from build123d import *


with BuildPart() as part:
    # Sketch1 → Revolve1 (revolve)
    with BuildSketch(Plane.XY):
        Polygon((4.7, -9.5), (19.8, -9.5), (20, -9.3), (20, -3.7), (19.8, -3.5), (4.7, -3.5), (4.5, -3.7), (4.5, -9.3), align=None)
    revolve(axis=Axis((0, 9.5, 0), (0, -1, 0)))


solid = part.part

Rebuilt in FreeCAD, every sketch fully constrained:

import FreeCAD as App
import Part
import Sketcher
from FreeCAD import Vector

doc = App.newDocument("Part")
body = doc.addObject("PartDesign::Body", "Body")

sketch1 = doc.addObject("Sketcher::SketchObject", "Sketch")
body.addObject(sketch1)
sketch1.AttachmentSupport = (doc.XY_Plane, [""])
sketch1.MapMode = "FlatFace"
sketch1.addGeometry(Part.LineSegment(Vector(4.7, -9.5, 0), Vector(19.8, -9.5, 0)), False)
sketch1.addGeometry(Part.LineSegment(Vector(19.8, -9.5, 0), Vector(20, -9.3, 0)), False)
sketch1.addGeometry(Part.LineSegment(Vector(20, -9.3, 0), Vector(20, -3.7, 0)), False)
sketch1.addGeometry(Part.LineSegment(Vector(20, -3.7, 0), Vector(19.8, -3.5, 0)), False)
sketch1.addGeometry(Part.LineSegment(Vector(19.8, -3.5, 0), Vector(4.7, -3.5, 0)), False)
sketch1.addGeometry(Part.LineSegment(Vector(4.7, -3.5, 0), Vector(4.5, -3.7, 0)), False)
sketch1.addGeometry(Part.LineSegment(Vector(4.5, -3.7, 0), Vector(4.5, -9.3, 0)), False)
sketch1.addGeometry(Part.LineSegment(Vector(4.5, -9.3, 0), Vector(4.7, -9.5, 0)), False)
sketch1.addConstraint(Sketcher.Constraint("Coincident", 0, 2, 1, 1))
sketch1.addConstraint(Sketcher.Constraint("Coincident", 1, 2, 2, 1))
sketch1.addConstraint(Sketcher.Constraint("Coincident", 2, 2, 3, 1))
sketch1.addConstraint(Sketcher.Constraint("Coincident", 3, 2, 4, 1))
sketch1.addConstraint(Sketcher.Constraint("Coincident", 4, 2, 5, 1))
sketch1.addConstraint(Sketcher.Constraint("Coincident", 5, 2, 6, 1))
sketch1.addConstraint(Sketcher.Constraint("Coincident", 6, 2, 7, 1))
sketch1.addConstraint(Sketcher.Constraint("Coincident", 7, 2, 0, 1))
sketch1.addConstraint(Sketcher.Constraint("Horizontal", 0))
sketch1.addConstraint(Sketcher.Constraint("Vertical", 2))
sketch1.addConstraint(Sketcher.Constraint("Horizontal", 4))
sketch1.addConstraint(Sketcher.Constraint("Vertical", 6))
sketch1.addConstraint(Sketcher.Constraint("Perpendicular", 1, 3))
sketch1.addConstraint(Sketcher.Constraint("Perpendicular", 3, 5))
sketch1.addConstraint(Sketcher.Constraint("Perpendicular", 5, 7))
sketch1.addConstraint(Sketcher.Constraint("Horizontal", 2, 2, 5, 2))
sketch1.addConstraint(Sketcher.Constraint("Horizontal", 1, 2, 6, 2))
sketch1.addConstraint(Sketcher.Constraint("Vertical", 0, 2, 3, 2))
sketch1.addConstraint(Sketcher.Constraint("Vertical", 4, 2, 7, 2))
sketch1.addConstraint(Sketcher.Constraint("DistanceX", 0, 1, 0, 2, 15.1))
sketch1.addConstraint(Sketcher.Constraint("DistanceY", 2, 1, 2, 2, 5.6))
sketch1.addConstraint(Sketcher.Constraint("DistanceX", -1, 1, 1, 2, 20.0))
sketch1.addConstraint(Sketcher.Constraint("DistanceY", 0, 2, 3, 2, 6.0))
sketch1.addConstraint(Sketcher.Constraint("DistanceY", 0, 2, -1, 1, 9.5))
revolution = doc.addObject("PartDesign::Revolution", "Revolution")
body.addObject(revolution)
revolution.Profile = sketch1
revolution.ReferenceAxis = (sketch1, ["V_Axis"])
revolution.Angle = 360

doc.recompute()
